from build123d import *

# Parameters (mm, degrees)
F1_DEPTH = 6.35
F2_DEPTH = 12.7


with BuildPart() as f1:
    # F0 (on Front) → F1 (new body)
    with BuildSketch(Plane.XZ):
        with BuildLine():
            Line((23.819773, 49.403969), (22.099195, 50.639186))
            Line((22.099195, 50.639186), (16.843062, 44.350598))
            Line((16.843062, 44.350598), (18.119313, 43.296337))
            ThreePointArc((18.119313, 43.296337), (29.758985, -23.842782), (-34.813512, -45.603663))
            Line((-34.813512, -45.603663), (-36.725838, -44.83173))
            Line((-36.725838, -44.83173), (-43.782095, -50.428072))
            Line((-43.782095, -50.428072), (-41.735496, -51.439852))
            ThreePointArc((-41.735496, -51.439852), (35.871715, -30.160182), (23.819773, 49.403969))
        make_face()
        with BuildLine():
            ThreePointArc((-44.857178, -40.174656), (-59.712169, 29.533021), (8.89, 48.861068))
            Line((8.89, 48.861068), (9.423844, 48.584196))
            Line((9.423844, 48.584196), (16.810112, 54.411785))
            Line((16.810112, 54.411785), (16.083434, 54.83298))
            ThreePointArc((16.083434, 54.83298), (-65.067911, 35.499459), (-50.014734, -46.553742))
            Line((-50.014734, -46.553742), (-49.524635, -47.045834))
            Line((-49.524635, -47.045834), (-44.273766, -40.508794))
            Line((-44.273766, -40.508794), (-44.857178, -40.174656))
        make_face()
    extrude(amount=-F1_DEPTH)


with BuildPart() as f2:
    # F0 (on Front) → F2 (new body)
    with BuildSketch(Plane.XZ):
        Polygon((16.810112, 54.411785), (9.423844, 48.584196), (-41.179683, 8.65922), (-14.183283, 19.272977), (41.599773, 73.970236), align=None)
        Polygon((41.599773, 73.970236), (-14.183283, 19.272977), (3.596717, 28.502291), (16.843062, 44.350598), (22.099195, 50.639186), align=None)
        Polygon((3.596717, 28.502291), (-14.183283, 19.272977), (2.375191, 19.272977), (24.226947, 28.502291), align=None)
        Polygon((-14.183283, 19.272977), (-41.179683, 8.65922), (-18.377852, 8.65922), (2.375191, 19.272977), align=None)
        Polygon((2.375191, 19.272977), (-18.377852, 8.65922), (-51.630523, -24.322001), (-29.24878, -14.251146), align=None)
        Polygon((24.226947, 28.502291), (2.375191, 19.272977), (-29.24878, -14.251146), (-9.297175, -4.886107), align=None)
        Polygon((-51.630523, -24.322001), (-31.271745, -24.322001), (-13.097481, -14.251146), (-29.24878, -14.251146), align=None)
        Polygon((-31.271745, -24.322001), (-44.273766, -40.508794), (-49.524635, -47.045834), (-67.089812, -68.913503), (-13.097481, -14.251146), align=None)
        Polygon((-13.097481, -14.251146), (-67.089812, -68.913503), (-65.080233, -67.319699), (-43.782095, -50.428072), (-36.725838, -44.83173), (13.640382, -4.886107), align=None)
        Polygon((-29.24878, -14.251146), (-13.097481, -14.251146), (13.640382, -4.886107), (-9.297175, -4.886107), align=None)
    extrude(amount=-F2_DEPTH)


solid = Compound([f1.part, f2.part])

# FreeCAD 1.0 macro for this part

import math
import FreeCAD as App
import Part
import Sketcher
Q = App.Units.Quantity

doc = App.newDocument("Part")
params = doc.addObject("Spreadsheet::Sheet", "Params")
for row, (alias, value) in enumerate([
    ("pad1_length", "0.25 in"),
    ("pad2_length", "0.5 in"),
], start=1):
    params.set(f"A{row}", alias)
    params.set(f"B{row}", "=" + value)
    params.setAlias(f"B{row}", alias)

body = doc.addObject("PartDesign::Body", "Body")
body.AllowCompound = True

sketch1 = doc.addObject("Sketcher::SketchObject", "Sketch")
body.addObject(sketch1)
sketch1.AttachmentSupport = (doc.XZ_Plane, [""])
sketch1.MapMode = "FlatFace"
sketch1.addGeometry([
    Part.LineSegment(App.Vector(23.8, 49.4, 0), App.Vector(22.1, 50.6, 0)),
    Part.LineSegment(App.Vector(22.1, 50.6, 0), App.Vector(16.8, 44.4, 0)),
    Part.LineSegment(App.Vector(16.8, 44.4, 0), App.Vector(18.1, 43.3, 0)),
    Part.ArcOfCircle(Part.Circle(App.Vector(-15.2, 2.9, 0), App.Vector(0, 0, 1), 52.3), math.radians(-112), math.radians(50)),
    Part.LineSegment(App.Vector(-34.8, -45.6, 0), App.Vector(-36.7, -44.8, 0)),
    Part.LineSegment(App.Vector(-36.7, -44.8, 0), App.Vector(-43.8, -50.4, 0)),
    Part.LineSegment(App.Vector(-43.8, -50.4, 0), App.Vector(-41.7, -51.4, 0)),
    Part.ArcOfCircle(Part.Circle(App.Vector(-14.9, 2.8, 0), App.Vector(0, 0, 1), 60.6), math.radians(-116), math.radians(50)),
    Part.ArcOfCircle(Part.Circle(App.Vector(-15.1, 2.6, 0), App.Vector(0, 0, 1), 52.1), math.radians(63), math.radians(235)),
    Part.LineSegment(App.Vector(8.9, 48.9, 0), App.Vector(9.4, 48.6, 0)),
    Part.LineSegment(App.Vector(9.4, 48.6, 0), App.Vector(16.8, 54.4, 0)),
    Part.LineSegment(App.Vector(16.8, 54.4, 0), App.Vector(16.1, 54.8, 0)),
    Part.ArcOfCircle(Part.Circle(App.Vector(-14.3, 2.4, 0), App.Vector(0, 0, 1), 60.6), math.radians(60), math.radians(234)),
    Part.LineSegment(App.Vector(-50, -46.6, 0), App.Vector(-49.5, -47, 0)),
    Part.LineSegment(App.Vector(-49.5, -47, 0), App.Vector(-44.3, -40.5, 0)),
    Part.LineSegment(App.Vector(-44.3, -40.5, 0), App.Vector(-44.9, -40.2, 0)),
], False)
sketch1.addConstraint([
    Sketcher.Constraint("Coincident", 0, 2, 1, 1),
    Sketcher.Constraint("Coincident", 1, 2, 2, 1),
    Sketcher.Constraint("Tangent", 2, 2, 3, 2),
    Sketcher.Constraint("Tangent", 3, 1, 4, 1),
    Sketcher.Constraint("Coincident", 4, 2, 5, 1),
    Sketcher.Constraint("Coincident", 5, 2, 6, 1),
    Sketcher.Constraint("Tangent", 6, 2, 7, 1),
    Sketcher.Constraint("Coincident", 7, 2, 0, 1),
    Sketcher.Constraint("Tangent", 8, 1, 9, 1),
    Sketcher.Constraint("Coincident", 9, 2, 10, 1),
    Sketcher.Constraint("Coincident", 10, 2, 11, 1),
    Sketcher.Constraint("Tangent", 11, 2, 12, 1),
    Sketcher.Constraint("Coincident", 12, 2, 13, 1),
    Sketcher.Constraint("Coincident", 13, 2, 14, 1),
    Sketcher.Constraint("Coincident", 14, 2, 15, 1),
    Sketcher.Constraint("Coincident", 15, 2, 8, 2),
    Sketcher.Constraint("DistanceY", 3, 1, 2, 2, Q("3.5 in")),
    Sketcher.Constraint("DistanceX", -1, 1, 8, 1, Q("0.35 in")),
    Sketcher.Constraint("Radius", 3, 52.3473),
    Sketcher.Constraint("Radius", 7, 60.555394),
    Sketcher.Constraint("Radius", 8, 52.109178),
    Sketcher.Constraint("Radius", 12, 60.598254),
    Sketcher.Constraint("DistanceY", 8, 3, 1, 2, Q("1.6436 in")),
    Sketcher.Constraint("DistanceY", 12, 3, 2, 2, Q("1.6099 in")),
    Sketcher.Constraint("DistanceY", 4, 2, 3, 3, Q("1.8807001 in")),
    Sketcher.Constraint("Distance", 5, 9.006098),
    Sketcher.Constraint("DistanceX", 3, 3, 8, 3, 0.117999),
    Sketcher.Constraint("DistanceX", 5, 2, 6, 2, 2.046599),
    Sketcher.Constraint("DistanceY", 8, 1, 7, 2, 0.542901),
    Sketcher.Constraint("DistanceY", 1, 2, 9, 2, 4.233598),
    Sketcher.Constraint("DistanceY", 0, 2, 10, 2, 3.772599),
    Sketcher.Constraint("DistanceY", 12, 2, 8, 3, 49.156899),
    Sketcher.Constraint("DistanceX", 12, 2, 13, 2, 0.490099),
    Sketcher.Constraint("Distance", 1, 8.19593),
    Sketcher.Constraint("Distance", 2, 1.65538),
    Sketcher.Constraint("Distance", 4, 2.062249),
    Sketcher.Constraint("Distance", 6, 2.283039),
    Sketcher.Constraint("Distance", 9, 0.601371),
    Sketcher.Constraint("Distance", 11, 0.83992),
    Sketcher.Constraint("Distance", 14, 8.384779),
    Sketcher.Constraint("DistanceY", 4, 2, -1, 1, 44.83173),
    Sketcher.Constraint("DistanceX", -1, 1, 10, 2, 16.810112),
    Sketcher.Constraint("DistanceY", -1, 1, 11, 2, 54.83298),
    Sketcher.Constraint("DistanceY", 7, 3, 3, 3, 0.093849),
    Sketcher.Constraint("DistanceY", 5, 2, 13, 2, 3.382238),
    Sketcher.Constraint("DistanceX", 13, 2, 14, 2, 5.250869),
    Sketcher.Constraint("DistanceX", 15, 2, 14, 2, 0.583412),
])
pad1 = doc.addObject("PartDesign::Pad", "Pad")
body.addObject(pad1)
pad1.Profile = sketch1
pad1.setExpression("Length", "Params.pad1_length")
pad1.Reversed = True
body2 = doc.addObject("PartDesign::Body", "Body001")

sketch2 = doc.addObject("Sketcher::SketchObject", "Sketch001")
body2.addObject(sketch2)
sketch2.AttachmentSupport = (doc.getObject("XZ_Plane001"), [""])
sketch2.MapMode = "FlatFace"
sketch2.addGeometry([
    Part.LineSegment(App.Vector(16.8, 54.4, 0), App.Vector(9.4, 48.6, 0)),
    Part.LineSegment(App.Vector(9.4, 48.6, 0), App.Vector(-41.2, 8.7, 0)),
    Part.LineSegment(App.Vector(-41.2, 8.7, 0), App.Vector(-18.4, 8.7, 0)),
    Part.LineSegment(App.Vector(-18.4, 8.7, 0), App.Vector(-51.6, -24.3, 0)),
    Part.LineSegment(App.Vector(-51.6, -24.3, 0), App.Vector(-31.3, -24.3, 0)),
    Part.LineSegment(App.Vector(-31.3, -24.3, 0), App.Vector(-44.3, -40.5, 0)),
    Part.LineSegment(App.Vector(-44.3, -40.5, 0), App.Vector(-49.5, -47, 0)),
    Part.LineSegment(App.Vector(-49.5, -47, 0), App.Vector(-67.1, -68.9, 0)),
    Part.LineSegment(App.Vector(-67.1, -68.9, 0), App.Vector(-65.1, -67.3, 0)),
    Part.LineSegment(App.Vector(-65.1, -67.3, 0), App.Vector(-43.8, -50.4, 0)),
    Part.LineSegment(App.Vector(-43.8, -50.4, 0), App.Vector(-36.7, -44.8, 0)),
    Part.LineSegment(App.Vector(-36.7, -44.8, 0), App.Vector(13.6, -4.9, 0)),
    Part.LineSegment(App.Vector(13.6, -4.9, 0), App.Vector(-9.3, -4.9, 0)),
    Part.LineSegment(App.Vector(-9.3, -4.9, 0), App.Vector(24.2, 28.5, 0)),
    Part.LineSegment(App.Vector(24.2, 28.5, 0), App.Vector(3.6, 28.5, 0)),
    Part.LineSegment(App.Vector(3.6, 28.5, 0), App.Vector(16.8, 44.4, 0)),
    Part.LineSegment(App.Vector(16.8, 44.4, 0), App.Vector(22.1, 50.6, 0)),
    Part.LineSegment(App.Vector(22.1, 50.6, 0), App.Vector(41.6, 74, 0)),
    Part.LineSegment(App.Vector(41.6, 74, 0), App.Vector(16.8, 54.4, 0)),
], False)
sketch2.addConstraint([
    Sketcher.Constraint("Coincident", 0, 2, 1, 1),
    Sketcher.Constraint("Coincident", 1, 2, 2, 1),
    Sketcher.Constraint("Coincident", 2, 2, 3, 1),
    Sketcher.Constraint("Coincident", 3, 2, 4, 1),
    Sketcher.Constraint("Coincident", 4, 2, 5, 1),
    Sketcher.Constraint("Coincident", 5, 2, 6, 1),
    Sketcher.Constraint("Coincident", 6, 2, 7, 1),
    Sketcher.Constraint("Coincident", 7, 2, 8, 1),
    Sketcher.Constraint("Coincident", 8, 2, 9, 1),
    Sketcher.Constraint("Coincident", 9, 2, 10, 1),
    Sketcher.Constraint("Coincident", 10, 2, 11, 1),
    Sketcher.Constraint("Coincident", 11, 2, 12, 1),
    Sketcher.Constraint("Coincident", 12, 2, 13, 1),
    Sketcher.Constraint("Coincident", 13, 2, 14, 1),
    Sketcher.Constraint("Coincident", 14, 2, 15, 1),
    Sketcher.Constraint("Coincident", 15, 2, 16, 1),
    Sketcher.Constraint("Coincident", 16, 2, 17, 1),
    Sketcher.Constraint("Coincident", 17, 2, 18, 1),
    Sketcher.Constraint("Coincident", 18, 2, 0, 1),
    Sketcher.Constraint("Horizontal", 2),
    Sketcher.Constraint("Horizontal", 4),
    Sketcher.Constraint("Horizontal", 12),
    Sketcher.Constraint("Horizontal", 14),
    Sketcher.Constraint("Parallel", 0, 1),
    Sketcher.Constraint("Parallel", 5, 6),
    Sketcher.Constraint("Parallel", 6, 7),
    Sketcher.Constraint("Parallel", 8, 9),
    Sketcher.Constraint("Parallel", 9, 10),
    Sketcher.Constraint("Parallel", 10, 11),
    Sketcher.Constraint("Parallel", 15, 16),
    Sketcher.Constraint("Parallel", 16, 17),
    Sketcher.Constraint("Parallel", 1, 18),
    Sketcher.Constraint("Distance", 5, 20.762101),
    Sketcher.Constraint("Distance", 10, 9.006098),
    Sketcher.Constraint("DistanceX", 2, 1, 2, 2, 22.801831),
    Sketcher.Constraint("DistanceX", 14, 2, 14, 1, 20.63023),
    Sketcher.Constraint("DistanceY", 3, 2, -1, 1, 24.322001),
    Sketcher.Constraint("DistanceY", 8, 2, -1, 1, 67.319699),
    Sketcher.Constraint("DistanceX", 8, 2, 6, 2, 15.555598),
    Sketcher.Constraint("DistanceY", 11, 2, 13, 2, 33.388398),
    Sketcher.Constraint("DistanceX", 2, 2, 13, 2, 42.604799),
    Sketcher.Constraint("DistanceY", 15, 2, 0, 2, 4.233598),
    Sketcher.Constraint("DistanceY", 16, 2, 18, 2, 3.772599),
    Sketcher.Constraint("Distance", 6, 8.384779),
    Sketcher.Constraint("Distance", 8, 2.564882),
    Sketcher.Constraint("Distance", 9, 27.183409),
    Sketcher.Constraint("Distance", 16, 8.19593),
    Sketcher.Constraint("Distance", 18, 31.576262),
    Sketcher.Constraint("DistanceX", 4, 1, 4, 2, 20.358778),
    Sketcher.Constraint("DistanceX", 12, 2, 12, 1, 22.937557),
    Sketcher.Constraint("DistanceY", -1, 1, 1, 2, 8.65922),
    Sketcher.Constraint("DistanceX", 7, 2, -1, 1, 67.089812),
    Sketcher.Constraint("DistanceX", 10, 2, -1, 1, 36.725838),
    Sketcher.Constraint("DistanceY", -1, 1, 13, 2, 28.502291),
    Sketcher.Constraint("DistanceX", -1, 1, 15, 2, 16.843062),
    Sketcher.Constraint("DistanceX", -1, 1, 18, 2, 16.810112),
    Sketcher.Constraint("DistanceX", 3, 2, 1, 2, 10.45084),
])
pad2 = doc.addObject("PartDesign::Pad", "Pad001")
body2.addObject(pad2)
pad2.Profile = sketch2
pad2.setExpression("Length", "Params.pad2_length")
pad2.Reversed = True

doc.recompute()
